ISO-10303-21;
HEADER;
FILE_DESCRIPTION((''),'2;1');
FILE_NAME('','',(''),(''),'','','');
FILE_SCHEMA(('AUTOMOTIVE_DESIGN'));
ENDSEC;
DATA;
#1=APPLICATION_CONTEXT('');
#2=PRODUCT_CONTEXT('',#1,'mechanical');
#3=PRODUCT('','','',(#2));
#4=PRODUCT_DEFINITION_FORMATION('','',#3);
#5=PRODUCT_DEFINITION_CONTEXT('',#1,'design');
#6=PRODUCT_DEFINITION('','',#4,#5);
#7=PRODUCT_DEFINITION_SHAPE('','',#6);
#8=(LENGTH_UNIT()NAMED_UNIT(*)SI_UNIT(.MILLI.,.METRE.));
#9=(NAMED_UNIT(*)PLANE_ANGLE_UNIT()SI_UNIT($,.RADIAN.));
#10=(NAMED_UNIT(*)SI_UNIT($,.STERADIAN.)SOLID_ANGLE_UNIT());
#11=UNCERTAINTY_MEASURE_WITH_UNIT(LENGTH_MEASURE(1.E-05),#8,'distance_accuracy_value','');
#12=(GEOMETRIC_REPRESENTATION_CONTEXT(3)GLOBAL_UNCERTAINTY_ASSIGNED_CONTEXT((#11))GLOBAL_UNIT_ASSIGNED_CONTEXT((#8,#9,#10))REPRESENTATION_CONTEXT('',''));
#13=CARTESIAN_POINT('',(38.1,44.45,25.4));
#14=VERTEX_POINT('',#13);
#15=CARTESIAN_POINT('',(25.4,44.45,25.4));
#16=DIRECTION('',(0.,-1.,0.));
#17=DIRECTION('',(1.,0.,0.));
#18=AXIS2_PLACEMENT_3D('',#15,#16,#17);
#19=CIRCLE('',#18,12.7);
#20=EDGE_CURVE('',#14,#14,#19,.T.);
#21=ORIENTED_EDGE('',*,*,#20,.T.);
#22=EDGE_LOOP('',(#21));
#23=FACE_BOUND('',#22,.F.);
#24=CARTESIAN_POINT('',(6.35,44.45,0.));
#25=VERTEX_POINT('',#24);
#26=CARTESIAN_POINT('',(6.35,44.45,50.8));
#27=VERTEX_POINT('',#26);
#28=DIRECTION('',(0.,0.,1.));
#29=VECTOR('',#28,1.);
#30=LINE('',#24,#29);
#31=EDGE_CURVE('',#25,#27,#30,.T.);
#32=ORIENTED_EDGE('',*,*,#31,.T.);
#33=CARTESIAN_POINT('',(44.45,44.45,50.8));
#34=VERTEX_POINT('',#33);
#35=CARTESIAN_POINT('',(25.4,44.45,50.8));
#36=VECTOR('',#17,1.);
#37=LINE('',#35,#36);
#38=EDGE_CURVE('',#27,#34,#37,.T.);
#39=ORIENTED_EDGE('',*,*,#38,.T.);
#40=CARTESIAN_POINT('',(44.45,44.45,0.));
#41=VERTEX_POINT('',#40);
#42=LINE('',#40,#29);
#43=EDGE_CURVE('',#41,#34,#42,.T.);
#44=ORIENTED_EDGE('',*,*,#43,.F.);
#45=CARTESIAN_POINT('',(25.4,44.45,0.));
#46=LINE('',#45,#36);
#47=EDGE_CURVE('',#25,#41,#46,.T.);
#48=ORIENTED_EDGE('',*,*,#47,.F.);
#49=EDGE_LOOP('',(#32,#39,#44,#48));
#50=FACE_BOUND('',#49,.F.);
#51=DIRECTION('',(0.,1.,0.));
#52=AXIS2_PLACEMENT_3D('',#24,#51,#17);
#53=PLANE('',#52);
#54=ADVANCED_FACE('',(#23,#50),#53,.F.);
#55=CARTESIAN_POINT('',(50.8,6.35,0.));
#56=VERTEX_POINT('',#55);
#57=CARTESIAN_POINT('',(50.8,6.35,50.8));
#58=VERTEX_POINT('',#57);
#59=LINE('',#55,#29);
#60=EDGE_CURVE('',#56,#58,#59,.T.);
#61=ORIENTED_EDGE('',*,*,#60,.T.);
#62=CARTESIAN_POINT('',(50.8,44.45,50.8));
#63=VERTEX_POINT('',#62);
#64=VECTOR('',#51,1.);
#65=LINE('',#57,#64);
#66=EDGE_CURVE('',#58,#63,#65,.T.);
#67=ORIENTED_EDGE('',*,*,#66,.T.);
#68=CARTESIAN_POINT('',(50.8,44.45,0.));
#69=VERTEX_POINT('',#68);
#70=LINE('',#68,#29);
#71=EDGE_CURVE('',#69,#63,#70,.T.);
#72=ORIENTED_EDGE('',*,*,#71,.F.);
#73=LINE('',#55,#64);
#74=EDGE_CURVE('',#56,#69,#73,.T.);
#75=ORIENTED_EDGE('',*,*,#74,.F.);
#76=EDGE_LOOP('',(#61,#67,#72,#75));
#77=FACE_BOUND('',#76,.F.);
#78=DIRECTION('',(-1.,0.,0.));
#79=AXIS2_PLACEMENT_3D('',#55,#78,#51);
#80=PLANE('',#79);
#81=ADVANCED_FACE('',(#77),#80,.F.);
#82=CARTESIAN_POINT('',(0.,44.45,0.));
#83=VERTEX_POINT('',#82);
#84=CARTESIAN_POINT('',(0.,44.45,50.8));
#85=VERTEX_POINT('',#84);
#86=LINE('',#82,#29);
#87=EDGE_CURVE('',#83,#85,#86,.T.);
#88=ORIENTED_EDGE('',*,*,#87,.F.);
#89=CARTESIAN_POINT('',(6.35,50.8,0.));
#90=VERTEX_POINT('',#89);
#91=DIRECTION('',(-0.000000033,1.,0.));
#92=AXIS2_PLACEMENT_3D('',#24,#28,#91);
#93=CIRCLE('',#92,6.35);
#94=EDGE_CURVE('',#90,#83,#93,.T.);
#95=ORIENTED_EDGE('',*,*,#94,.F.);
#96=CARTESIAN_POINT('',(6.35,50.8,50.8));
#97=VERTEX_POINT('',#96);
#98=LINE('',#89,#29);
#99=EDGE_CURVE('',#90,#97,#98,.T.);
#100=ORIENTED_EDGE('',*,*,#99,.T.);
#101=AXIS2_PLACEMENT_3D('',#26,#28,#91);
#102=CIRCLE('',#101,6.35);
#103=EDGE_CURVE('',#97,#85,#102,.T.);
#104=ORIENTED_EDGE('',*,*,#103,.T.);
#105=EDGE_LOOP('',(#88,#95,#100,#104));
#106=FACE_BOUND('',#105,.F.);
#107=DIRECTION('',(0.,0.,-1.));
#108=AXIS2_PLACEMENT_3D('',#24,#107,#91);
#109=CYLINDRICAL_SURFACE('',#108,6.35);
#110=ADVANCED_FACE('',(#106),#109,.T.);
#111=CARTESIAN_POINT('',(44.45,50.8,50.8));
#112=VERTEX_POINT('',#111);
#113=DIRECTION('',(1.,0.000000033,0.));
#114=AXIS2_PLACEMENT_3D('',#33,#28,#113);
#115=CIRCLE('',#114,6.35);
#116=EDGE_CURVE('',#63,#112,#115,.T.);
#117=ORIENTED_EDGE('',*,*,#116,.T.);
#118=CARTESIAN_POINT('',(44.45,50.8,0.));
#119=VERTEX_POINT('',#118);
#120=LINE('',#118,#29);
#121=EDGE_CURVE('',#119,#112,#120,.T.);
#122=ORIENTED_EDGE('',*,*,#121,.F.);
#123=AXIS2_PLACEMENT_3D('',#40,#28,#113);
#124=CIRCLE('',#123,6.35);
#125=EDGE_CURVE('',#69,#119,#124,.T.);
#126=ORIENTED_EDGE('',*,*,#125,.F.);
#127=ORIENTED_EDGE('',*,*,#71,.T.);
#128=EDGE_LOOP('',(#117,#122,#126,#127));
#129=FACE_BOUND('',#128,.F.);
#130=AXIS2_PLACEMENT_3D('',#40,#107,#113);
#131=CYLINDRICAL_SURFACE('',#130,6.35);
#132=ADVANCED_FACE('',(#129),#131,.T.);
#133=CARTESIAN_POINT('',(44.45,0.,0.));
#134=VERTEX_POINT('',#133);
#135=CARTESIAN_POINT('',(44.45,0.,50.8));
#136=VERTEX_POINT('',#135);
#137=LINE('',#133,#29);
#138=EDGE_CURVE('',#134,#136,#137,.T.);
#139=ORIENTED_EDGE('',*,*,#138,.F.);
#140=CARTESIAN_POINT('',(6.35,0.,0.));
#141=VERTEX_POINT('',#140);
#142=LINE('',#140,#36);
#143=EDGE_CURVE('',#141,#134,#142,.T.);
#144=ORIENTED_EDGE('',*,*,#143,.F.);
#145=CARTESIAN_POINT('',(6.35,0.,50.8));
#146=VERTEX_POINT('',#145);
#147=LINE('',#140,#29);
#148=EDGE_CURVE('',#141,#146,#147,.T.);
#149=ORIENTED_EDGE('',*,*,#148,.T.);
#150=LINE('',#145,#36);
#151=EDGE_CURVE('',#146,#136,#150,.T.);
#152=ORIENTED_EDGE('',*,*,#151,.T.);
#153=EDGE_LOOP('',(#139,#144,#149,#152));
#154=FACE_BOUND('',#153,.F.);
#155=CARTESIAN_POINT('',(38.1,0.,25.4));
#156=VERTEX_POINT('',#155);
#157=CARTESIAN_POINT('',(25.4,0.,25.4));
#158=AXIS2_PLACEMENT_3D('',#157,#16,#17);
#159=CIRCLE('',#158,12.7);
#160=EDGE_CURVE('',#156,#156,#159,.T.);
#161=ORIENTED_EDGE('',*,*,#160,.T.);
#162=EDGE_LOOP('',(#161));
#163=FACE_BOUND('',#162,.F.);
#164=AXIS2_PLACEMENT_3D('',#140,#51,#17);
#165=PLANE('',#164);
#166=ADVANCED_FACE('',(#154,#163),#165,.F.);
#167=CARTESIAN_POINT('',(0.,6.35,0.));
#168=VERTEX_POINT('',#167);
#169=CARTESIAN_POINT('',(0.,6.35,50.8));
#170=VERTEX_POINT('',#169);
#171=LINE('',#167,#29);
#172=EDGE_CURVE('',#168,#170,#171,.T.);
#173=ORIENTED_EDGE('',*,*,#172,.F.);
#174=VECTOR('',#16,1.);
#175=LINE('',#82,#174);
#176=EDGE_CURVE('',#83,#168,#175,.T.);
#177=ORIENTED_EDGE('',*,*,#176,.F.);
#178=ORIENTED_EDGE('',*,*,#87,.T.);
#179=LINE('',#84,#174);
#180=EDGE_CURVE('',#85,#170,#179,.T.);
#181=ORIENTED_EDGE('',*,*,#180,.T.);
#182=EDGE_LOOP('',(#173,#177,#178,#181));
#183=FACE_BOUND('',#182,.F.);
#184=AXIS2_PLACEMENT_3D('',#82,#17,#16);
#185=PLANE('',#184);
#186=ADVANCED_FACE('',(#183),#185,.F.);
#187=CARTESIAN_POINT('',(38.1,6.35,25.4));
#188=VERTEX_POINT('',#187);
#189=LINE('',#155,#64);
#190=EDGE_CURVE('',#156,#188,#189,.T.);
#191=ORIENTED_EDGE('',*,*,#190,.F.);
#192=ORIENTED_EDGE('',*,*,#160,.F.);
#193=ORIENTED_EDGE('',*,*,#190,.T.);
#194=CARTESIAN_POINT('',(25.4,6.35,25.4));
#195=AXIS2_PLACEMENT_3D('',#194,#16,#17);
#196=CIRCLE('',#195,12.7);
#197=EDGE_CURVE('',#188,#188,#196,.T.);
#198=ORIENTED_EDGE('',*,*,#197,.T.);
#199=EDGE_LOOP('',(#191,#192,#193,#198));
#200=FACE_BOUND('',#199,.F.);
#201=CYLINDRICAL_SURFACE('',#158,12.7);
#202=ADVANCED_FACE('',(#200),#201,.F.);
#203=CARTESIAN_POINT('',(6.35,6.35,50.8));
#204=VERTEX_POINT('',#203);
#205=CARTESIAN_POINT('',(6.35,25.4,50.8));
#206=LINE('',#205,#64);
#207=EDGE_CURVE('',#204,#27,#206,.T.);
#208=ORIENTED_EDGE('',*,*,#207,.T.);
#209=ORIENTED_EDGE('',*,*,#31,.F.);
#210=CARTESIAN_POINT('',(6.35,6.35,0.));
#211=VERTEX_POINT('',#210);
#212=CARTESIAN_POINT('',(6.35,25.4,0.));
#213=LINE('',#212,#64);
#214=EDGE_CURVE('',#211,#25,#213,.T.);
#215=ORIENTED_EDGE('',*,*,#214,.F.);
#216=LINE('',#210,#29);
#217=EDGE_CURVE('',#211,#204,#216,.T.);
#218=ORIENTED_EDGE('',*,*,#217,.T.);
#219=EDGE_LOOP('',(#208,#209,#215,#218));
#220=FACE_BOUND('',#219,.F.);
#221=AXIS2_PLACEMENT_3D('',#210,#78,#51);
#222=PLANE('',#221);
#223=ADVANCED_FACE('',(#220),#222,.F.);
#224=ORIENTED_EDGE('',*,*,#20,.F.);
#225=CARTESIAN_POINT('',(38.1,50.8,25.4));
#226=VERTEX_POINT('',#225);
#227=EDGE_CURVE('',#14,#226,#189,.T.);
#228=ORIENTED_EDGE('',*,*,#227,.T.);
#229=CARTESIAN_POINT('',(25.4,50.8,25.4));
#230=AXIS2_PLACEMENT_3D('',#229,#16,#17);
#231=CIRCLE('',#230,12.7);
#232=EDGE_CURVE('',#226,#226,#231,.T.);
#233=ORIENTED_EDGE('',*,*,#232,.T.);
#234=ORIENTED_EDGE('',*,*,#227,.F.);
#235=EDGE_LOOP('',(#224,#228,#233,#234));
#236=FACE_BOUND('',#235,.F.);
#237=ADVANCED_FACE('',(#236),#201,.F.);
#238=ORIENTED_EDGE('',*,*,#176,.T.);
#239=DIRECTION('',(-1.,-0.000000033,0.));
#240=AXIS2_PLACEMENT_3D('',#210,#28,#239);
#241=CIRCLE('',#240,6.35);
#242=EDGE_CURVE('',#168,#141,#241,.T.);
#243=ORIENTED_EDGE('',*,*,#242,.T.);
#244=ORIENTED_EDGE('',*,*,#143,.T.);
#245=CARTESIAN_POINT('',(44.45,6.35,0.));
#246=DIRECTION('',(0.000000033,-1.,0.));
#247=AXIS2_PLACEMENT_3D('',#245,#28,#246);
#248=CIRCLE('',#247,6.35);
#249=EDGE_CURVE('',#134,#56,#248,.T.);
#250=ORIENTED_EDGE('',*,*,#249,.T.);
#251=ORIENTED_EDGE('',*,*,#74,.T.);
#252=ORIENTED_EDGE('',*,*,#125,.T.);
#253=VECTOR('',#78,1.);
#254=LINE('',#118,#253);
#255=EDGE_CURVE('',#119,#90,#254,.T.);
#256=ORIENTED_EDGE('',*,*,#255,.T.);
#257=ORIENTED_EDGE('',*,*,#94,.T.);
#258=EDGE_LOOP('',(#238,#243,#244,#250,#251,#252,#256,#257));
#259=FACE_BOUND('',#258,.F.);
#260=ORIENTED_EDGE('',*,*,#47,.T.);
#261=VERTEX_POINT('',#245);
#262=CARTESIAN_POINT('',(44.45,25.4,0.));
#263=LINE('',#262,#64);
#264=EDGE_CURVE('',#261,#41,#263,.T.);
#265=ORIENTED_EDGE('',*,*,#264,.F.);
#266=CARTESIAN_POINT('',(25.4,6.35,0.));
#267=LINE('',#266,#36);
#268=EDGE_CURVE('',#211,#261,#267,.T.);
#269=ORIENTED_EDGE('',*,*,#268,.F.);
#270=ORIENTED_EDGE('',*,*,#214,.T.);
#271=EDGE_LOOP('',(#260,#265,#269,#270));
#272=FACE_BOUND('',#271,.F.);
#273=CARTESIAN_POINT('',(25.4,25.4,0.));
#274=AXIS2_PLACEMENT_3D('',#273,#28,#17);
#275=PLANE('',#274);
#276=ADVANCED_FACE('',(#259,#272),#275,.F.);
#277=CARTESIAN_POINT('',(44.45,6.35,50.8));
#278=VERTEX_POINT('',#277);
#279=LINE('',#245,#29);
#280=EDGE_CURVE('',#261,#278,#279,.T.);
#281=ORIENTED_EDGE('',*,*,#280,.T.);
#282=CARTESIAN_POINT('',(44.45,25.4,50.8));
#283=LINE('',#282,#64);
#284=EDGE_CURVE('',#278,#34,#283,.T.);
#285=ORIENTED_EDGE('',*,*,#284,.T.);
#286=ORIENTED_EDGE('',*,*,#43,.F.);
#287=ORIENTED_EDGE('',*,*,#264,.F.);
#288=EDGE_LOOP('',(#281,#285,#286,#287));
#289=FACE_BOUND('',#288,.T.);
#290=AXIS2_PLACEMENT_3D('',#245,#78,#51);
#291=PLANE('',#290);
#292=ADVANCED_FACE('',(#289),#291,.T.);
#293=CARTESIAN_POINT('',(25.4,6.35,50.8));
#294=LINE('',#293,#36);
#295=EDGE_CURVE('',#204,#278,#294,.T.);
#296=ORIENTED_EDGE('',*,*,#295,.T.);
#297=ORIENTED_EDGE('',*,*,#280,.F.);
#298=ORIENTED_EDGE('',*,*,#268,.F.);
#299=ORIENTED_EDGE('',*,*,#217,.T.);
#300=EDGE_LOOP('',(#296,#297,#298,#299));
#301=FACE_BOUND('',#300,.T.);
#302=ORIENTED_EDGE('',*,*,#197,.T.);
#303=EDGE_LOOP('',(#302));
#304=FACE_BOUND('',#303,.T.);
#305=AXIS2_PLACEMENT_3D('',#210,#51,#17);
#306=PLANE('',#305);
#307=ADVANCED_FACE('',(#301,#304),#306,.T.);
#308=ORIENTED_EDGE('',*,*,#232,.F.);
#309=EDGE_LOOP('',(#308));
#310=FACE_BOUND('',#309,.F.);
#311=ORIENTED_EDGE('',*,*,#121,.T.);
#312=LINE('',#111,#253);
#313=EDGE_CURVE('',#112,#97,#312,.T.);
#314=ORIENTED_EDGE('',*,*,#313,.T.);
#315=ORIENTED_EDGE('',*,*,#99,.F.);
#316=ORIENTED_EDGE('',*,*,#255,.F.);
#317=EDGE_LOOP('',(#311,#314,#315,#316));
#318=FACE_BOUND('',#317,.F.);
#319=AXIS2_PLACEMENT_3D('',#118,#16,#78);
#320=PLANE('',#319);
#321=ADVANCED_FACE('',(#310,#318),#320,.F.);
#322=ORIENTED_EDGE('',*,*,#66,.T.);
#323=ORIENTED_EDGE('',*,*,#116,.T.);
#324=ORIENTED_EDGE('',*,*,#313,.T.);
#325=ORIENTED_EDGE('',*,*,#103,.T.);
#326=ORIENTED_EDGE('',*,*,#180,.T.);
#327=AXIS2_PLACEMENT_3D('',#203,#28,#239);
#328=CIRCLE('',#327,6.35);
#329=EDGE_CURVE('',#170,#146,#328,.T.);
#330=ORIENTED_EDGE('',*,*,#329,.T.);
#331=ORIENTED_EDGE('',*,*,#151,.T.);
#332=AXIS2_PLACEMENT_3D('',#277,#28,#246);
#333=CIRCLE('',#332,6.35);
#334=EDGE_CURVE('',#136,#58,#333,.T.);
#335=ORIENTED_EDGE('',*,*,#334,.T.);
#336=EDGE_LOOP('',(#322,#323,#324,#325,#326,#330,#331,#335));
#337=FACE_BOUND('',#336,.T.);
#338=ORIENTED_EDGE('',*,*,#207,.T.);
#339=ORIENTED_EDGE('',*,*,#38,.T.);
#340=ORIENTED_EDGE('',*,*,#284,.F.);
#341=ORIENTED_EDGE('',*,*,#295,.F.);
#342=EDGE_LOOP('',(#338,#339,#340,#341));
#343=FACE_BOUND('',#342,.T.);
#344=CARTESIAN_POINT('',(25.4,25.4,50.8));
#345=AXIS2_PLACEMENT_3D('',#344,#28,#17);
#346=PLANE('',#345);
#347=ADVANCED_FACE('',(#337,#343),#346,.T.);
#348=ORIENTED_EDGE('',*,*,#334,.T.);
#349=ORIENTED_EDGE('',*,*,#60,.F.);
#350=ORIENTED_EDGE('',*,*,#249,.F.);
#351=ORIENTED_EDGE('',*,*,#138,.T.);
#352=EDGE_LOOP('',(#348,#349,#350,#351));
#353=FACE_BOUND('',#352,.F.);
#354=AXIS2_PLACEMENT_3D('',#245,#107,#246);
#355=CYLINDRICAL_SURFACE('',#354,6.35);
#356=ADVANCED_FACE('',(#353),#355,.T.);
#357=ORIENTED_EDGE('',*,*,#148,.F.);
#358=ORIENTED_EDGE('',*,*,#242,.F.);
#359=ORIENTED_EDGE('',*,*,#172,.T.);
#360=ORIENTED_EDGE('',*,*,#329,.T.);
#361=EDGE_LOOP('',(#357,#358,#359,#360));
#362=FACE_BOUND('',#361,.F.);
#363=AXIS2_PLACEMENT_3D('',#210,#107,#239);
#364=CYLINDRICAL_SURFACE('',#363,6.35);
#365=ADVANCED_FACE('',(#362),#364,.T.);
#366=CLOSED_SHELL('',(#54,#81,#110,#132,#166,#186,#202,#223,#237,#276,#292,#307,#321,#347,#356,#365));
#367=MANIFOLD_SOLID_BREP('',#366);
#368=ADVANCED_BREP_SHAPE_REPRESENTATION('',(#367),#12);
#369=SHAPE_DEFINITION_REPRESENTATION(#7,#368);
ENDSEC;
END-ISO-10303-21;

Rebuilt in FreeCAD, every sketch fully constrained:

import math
import FreeCAD as App
import Part
import Sketcher
from FreeCAD import Vector
Q = App.Units.Quantity


def add_polygon(sketch, points):
    """Adds a closed chain of lines whose ends are joined by coincident constraints."""
    first, n = sketch.GeometryCount, len(points)
    for a, b in zip(points, points[1:] + points[:1]):
        sketch.addGeometry(Part.LineSegment(App.Vector(*a, 0), App.Vector(*b, 0)), False)
    for i in range(n):
        sketch.addConstraint(Sketcher.Constraint("Coincident", first + i, 2, first + (i + 1) % n, 1))

doc = App.newDocument("Part")
body = doc.addObject("PartDesign::Body", "Body")

sketch1 = doc.addObject("Sketcher::SketchObject", "Sketch")
body.addObject(sketch1)
sketch1.AttachmentSupport = (doc.XY_Plane, [""])
sketch1.MapMode = "FlatFace"
sketch1.addGeometry(Part.ArcOfCircle(Part.Circle(Vector(6.35, 6.35, 0), Vector(0, 0, 1), 6.35), math.radians(-179.999998), math.radians(-90.000002)), False)
sketch1.addGeometry(Part.LineSegment(Vector(6.35, 0, 0), Vector(44.45, 0, 0)), False)
sketch1.addGeometry(Part.ArcOfCircle(Part.Circle(Vector(44.45, 6.35, 0), Vector(0, 0, 1), 6.35), math.radians(-89.999998), math.radians(-0.000002)), False)
sketch1.addGeometry(Part.LineSegment(Vector(50.8, 6.35, 0), Vector(50.8, 44.45, 0)), False)
sketch1.addGeometry(Part.ArcOfCircle(Part.Circle(Vector(44.45, 44.45, 0), Vector(0, 0, 1), 6.35), math.radians(0.000002), math.radians(89.999998)), False)
sketch1.addGeometry(Part.LineSegment(Vector(44.45, 50.8, 0), Vector(6.35, 50.8, 0)), False)
sketch1.addGeometry(Part.ArcOfCircle(Part.Circle(Vector(6.35, 44.45, 0), Vector(0, 0, 1), 6.35), math.radians(90.000002), math.radians(179.999998)), False)
sketch1.addGeometry(Part.LineSegment(Vector(0, 44.45, 0), Vector(0, 6.35, 0)), False)
add_polygon(sketch1, [(44.45, 6.35), (6.35, 6.35), (6.35, 44.45), (44.45, 44.45)])
sketch1.addConstraint([
    Sketcher.Constraint("Tangent", 0, 2, 1, 1),
    Sketcher.Constraint("Tangent", 1, 2, 2, 1),
    Sketcher.Constraint("Tangent", 2, 2, 3, 1),
    Sketcher.Constraint("Tangent", 3, 2, 4, 1),
    Sketcher.Constraint("Tangent", 4, 2, 5, 1),
    Sketcher.Constraint("Tangent", 5, 2, 6, 1),
    Sketcher.Constraint("Tangent", 6, 2, 7, 1),
    Sketcher.Constraint("Tangent", 7, 2, 0, 1),
    Sketcher.Constraint("Horizontal", 1),
    Sketcher.Constraint("Vertical", 3),
    Sketcher.Constraint("Horizontal", 5),
    Sketcher.Constraint("Vertical", 7),
    Sketcher.Constraint("Horizontal", 8),
    Sketcher.Constraint("Vertical", 9),
    Sketcher.Constraint("Horizontal", 10),
    Sketcher.Constraint("Vertical", 11),
    Sketcher.Constraint("Coincident", 8, 2, 0, 3),
    Sketcher.Constraint("Coincident", 9, 2, 6, 3),
    Sketcher.Constraint("Coincident", 10, 2, 4, 3),
    Sketcher.Constraint("Equal", 0, 2),
    Sketcher.Constraint("PointOnObject", 0, 2, -1),
    Sketcher.Constraint("PointOnObject", 6, 2, -2),
    Sketcher.Constraint("Equal", 10, 3),
    Sketcher.Constraint("Radius", 0, Q("0.25 in")),
    Sketcher.Constraint("DistanceX", 1, 1, 1, 2, Q("1.5 in")),
])
pad1 = doc.addObject("PartDesign::Pad", "Pad")
body.addObject(pad1)
pad1.Profile = sketch1
pad1.Length = Q("2 in")

sketch2 = doc.addObject("Sketcher::SketchObject", "Sketch001")
body.addObject(sketch2)
sketch2.AttachmentSupport = (doc.XZ_Plane, [""])
sketch2.MapMode = "FlatFace"
sketch2.addGeometry(Part.Circle(Vector(25.4, 25.4, 0), Vector(0, 0, 1), 12.7), False)
sketch2.addConstraint([
    Sketcher.Constraint("Diameter", 0, Q("1 in")),
    Sketcher.Constraint("DistanceX", -1, 1, 0, 3, Q("1 in")),
    Sketcher.Constraint("DistanceY", -1, 1, 0, 3, Q("1 in")),
])
pocket1 = doc.addObject("PartDesign::Pocket", "Pocket")
body.addObject(pocket1)
pocket1.Profile = sketch2
pocket1.Type = "ThroughAll"

doc.recompute()
